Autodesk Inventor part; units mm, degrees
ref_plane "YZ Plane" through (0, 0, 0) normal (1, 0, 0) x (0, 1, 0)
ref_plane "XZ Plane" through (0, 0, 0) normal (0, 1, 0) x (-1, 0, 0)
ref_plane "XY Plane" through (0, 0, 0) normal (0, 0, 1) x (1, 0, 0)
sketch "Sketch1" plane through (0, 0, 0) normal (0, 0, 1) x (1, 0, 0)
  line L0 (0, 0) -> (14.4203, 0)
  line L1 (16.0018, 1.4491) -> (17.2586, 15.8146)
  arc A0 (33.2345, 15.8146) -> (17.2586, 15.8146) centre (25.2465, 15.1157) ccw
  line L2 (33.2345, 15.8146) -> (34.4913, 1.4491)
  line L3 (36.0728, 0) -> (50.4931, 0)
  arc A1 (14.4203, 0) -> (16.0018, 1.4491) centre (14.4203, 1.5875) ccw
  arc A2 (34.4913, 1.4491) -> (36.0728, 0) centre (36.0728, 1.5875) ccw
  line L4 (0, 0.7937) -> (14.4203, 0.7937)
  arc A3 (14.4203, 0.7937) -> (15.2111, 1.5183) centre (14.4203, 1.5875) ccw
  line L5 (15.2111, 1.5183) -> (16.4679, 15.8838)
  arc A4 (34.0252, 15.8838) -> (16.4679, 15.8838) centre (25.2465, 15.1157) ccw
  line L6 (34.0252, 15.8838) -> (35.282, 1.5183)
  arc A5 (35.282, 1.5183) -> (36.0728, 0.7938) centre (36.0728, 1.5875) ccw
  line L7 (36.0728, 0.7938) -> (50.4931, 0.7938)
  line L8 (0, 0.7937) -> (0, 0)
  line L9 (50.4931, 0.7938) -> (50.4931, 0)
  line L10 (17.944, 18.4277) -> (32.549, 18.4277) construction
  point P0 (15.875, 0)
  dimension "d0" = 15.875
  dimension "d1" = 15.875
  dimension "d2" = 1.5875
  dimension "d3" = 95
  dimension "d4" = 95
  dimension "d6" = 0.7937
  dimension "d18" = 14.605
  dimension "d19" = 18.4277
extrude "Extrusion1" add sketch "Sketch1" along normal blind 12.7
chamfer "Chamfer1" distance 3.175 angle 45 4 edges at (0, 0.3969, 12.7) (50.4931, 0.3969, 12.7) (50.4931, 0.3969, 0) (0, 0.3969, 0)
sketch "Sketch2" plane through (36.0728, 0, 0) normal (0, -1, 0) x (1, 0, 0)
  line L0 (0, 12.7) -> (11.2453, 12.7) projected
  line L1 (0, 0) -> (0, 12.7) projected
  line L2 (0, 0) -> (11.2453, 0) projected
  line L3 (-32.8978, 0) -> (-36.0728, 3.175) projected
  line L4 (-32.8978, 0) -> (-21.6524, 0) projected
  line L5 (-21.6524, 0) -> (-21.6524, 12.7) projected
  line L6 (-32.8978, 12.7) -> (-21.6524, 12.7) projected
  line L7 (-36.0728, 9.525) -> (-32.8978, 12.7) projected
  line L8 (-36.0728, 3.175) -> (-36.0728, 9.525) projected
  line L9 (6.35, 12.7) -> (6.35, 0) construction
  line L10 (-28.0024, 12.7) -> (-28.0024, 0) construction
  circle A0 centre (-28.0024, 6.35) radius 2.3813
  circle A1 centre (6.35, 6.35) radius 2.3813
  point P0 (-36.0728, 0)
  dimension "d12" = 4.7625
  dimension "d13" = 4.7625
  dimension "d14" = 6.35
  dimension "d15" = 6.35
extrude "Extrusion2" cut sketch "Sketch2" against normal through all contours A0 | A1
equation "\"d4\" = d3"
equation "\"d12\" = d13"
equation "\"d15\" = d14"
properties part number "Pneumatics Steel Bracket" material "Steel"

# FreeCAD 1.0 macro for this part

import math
import FreeCAD as App
import Part
import Sketcher

V = App.Vector
Q = App.Units.Quantity


def edges_at(feature, points):
    """Names of the edges that pass closest to the given points."""
    edges = feature.Shape.Edges
    near = lambda p: min(range(len(edges)), key=lambda i: edges[i].distToShape(Part.Vertex(*p))[0])
    return sorted({f"Edge{near(p) + 1}" for p in points})

doc = App.newDocument("Part")
params = doc.addObject("Spreadsheet::Sheet", "Params")
for row, (alias, value) in enumerate([
    ("sketch1_radius", "0.0625 in"),
    ("sketch1_radius2", "0.031252 in"),
    ("pad1_length", "0.5 in"),
    ("chamfer_size", "0.125 in"),
    ("sketch2_diameter", "0.1875 in"),
], start=1):
    params.set(f"A{row}", alias)
    params.set(f"B{row}", "=" + value)
    params.setAlias(f"B{row}", alias)

body = doc.addObject("PartDesign::Body", "Body")

sketch1 = doc.addObject("Sketcher::SketchObject", "Sketch")
body.addObject(sketch1)
sketch1.AttachmentSupport = (doc.XY_Plane, [""])
sketch1.MapMode = "FlatFace"
sketch1.addGeometry(Part.LineSegment(V(0, 0.8, 0), V(0, 0, 0)), False)
sketch1.addGeometry(Part.LineSegment(V(0, 0, 0), V(14.4, 0, 0)), False)
sketch1.addGeometry(Part.ArcOfCircle(Part.Circle(V(14.4, 1.6, 0), V(0, 0, 1), 1.6), math.radians(-90), math.radians(-5)), False)
sketch1.addGeometry(Part.LineSegment(V(16, 1.4, 0), V(17.3, 15.8, 0)), False)
sketch1.addGeometry(Part.ArcOfCircle(Part.Circle(V(25.2, 15.1, 0), V(0, 0, 1), 8), math.radians(5), math.radians(175)), False)
sketch1.addGeometry(Part.LineSegment(V(33.2, 15.8, 0), V(34.5, 1.4, 0)), False)
sketch1.addGeometry(Part.ArcOfCircle(Part.Circle(V(36.1, 1.6, 0), V(0, 0, 1), 1.6), math.radians(-175), math.radians(-90)), False)
sketch1.addGeometry(Part.LineSegment(V(36.1, 0, 0), V(50.5, 0, 0)), False)
sketch1.addGeometry(Part.LineSegment(V(50.5, 0, 0), V(50.5, 0.8, 0)), False)
sketch1.addGeometry(Part.LineSegment(V(50.5, 0.8, 0), V(36.1, 0.8, 0)), False)
sketch1.addGeometry(Part.ArcOfCircle(Part.Circle(V(36.1, 1.6, 0), V(0, 0, 1), 0.8), math.radians(-175), math.radians(-90)), False)
sketch1.addGeometry(Part.LineSegment(V(35.3, 1.5, 0), V(34, 15.9, 0)), False)
sketch1.addGeometry(Part.ArcOfCircle(Part.Circle(V(25.2, 15.1, 0), V(0, 0, 1), 8.8), math.radians(5), math.radians(175)), False)
sketch1.addGeometry(Part.LineSegment(V(16.5, 15.9, 0), V(15.2, 1.5, 0)), False)
sketch1.addGeometry(Part.ArcOfCircle(Part.Circle(V(14.4, 1.6, 0), V(0, 0, 1), 0.8), math.radians(-90), math.radians(-5)), False)
sketch1.addGeometry(Part.LineSegment(V(14.4, 0.8, 0), V(0, 0.8, 0)), False)
sketch1.addConstraint(Sketcher.Constraint("Coincident", 0, 2, 1, 1))
sketch1.addConstraint(Sketcher.Constraint("Tangent", 1, 2, 2, 1))
sketch1.addConstraint(Sketcher.Constraint("Tangent", 2, 2, 3, 1))
sketch1.addConstraint(Sketcher.Constraint("Tangent", 3, 2, 4, 2))
sketch1.addConstraint(Sketcher.Constraint("Tangent", 4, 1, 5, 1))
sketch1.addConstraint(Sketcher.Constraint("Tangent", 5, 2, 6, 1))
sketch1.addConstraint(Sketcher.Constraint("Tangent", 6, 2, 7, 1))
sketch1.addConstraint(Sketcher.Constraint("Coincident", 7, 2, 8, 1))
sketch1.addConstraint(Sketcher.Constraint("Coincident", 8, 2, 9, 1))
sketch1.addConstraint(Sketcher.Constraint("Tangent", 9, 2, 10, 2))
sketch1.addConstraint(Sketcher.Constraint("Tangent", 10, 1, 11, 1))
sketch1.addConstraint(Sketcher.Constraint("Tangent", 11, 2, 12, 1))
sketch1.addConstraint(Sketcher.Constraint("Tangent", 12, 2, 13, 1))
sketch1.addConstraint(Sketcher.Constraint("Tangent", 13, 2, 14, 2))
sketch1.addConstraint(Sketcher.Constraint("Tangent", 14, 1, 15, 1))
sketch1.addConstraint(Sketcher.Constraint("Coincident", 15, 2, 0, 1))
sketch1.addConstraint(Sketcher.Constraint("Vertical", 0))
sketch1.addConstraint(Sketcher.Constraint("Horizontal", 1))
sketch1.addConstraint(Sketcher.Constraint("Horizontal", 7))
sketch1.addConstraint(Sketcher.Constraint("Vertical", 8))
sketch1.addConstraint(Sketcher.Constraint("Horizontal", 9))
sketch1.addConstraint(Sketcher.Constraint("Horizontal", 15))
sketch1.addConstraint(Sketcher.Constraint("Coincident", 0, 2, -1, 1))
sketch1.addConstraint(Sketcher.Constraint("Coincident", 10, 3, 6, 3))
sketch1.addConstraint(Sketcher.Constraint("Coincident", 12, 3, 4, 3))
sketch1.addConstraint(Sketcher.Constraint("Coincident", 14, 3, 2, 3))
sketch1.addConstraint(Sketcher.Constraint("Equal", 2, 6))
sketch1.addConstraint(Sketcher.Constraint("Equal", 10, 14))
sketch1.addConstraint(Sketcher.Constraint("PointOnObject", 6, 2, -1))
sketch1.addConstraint(Sketcher.Constraint("Parallel", 5, 11))
sketch1.addConstraint(Sketcher.Constraint("Horizontal", 3, 2, 4, 1))
sketch1.addConstraint(Sketcher.Constraint("Equal", 1, 7))
sketch1.addConstraint(Sketcher.Constraint("Angle", 11, Q("95 deg")))
sketch1.addConstraint(Sketcher.Constraint("Radius", 2, Q("0.0625 in")))
sketch1.addConstraint(Sketcher.Constraint("Radius", 10, Q("0.031252 in")))
sketch1.addConstraint(Sketcher.Constraint("Radius", 4, Q("0.3157 in")))
sketch1.addConstraint(Sketcher.Constraint("DistanceX", -1, 1, 2, 2, Q("0.63 in")))
sketch1.addConstraint(Sketcher.Constraint("DistanceY", -1, 1, 4, 3, Q("0.5951 in")))
sketch1.setExpression("Constraints[33]", "Params.sketch1_radius")
sketch1.setExpression("Constraints[34]", "Params.sketch1_radius2")
pad1 = doc.addObject("PartDesign::Pad", "Pad")
body.addObject(pad1)
pad1.Profile = sketch1
pad1.setExpression("Length", "Params.pad1_length")
doc.recompute()

chamfer = doc.addObject("PartDesign::Chamfer", "Chamfer")
body.addObject(chamfer)
chamfer.Base = (pad1, edges_at(pad1, [
    (0, 0.397, 12.7),
    (50.493, 0.397, 12.7),
    (50.493, 0.397, 0),
    (0, 0.397, 0),
]))
chamfer.setExpression("Size", "Params.chamfer_size")

sketch2 = doc.addObject("Sketcher::SketchObject", "Sketch001")
body.addObject(sketch2)
sketch2.AttachmentSupport = (doc.XZ_Plane, [""])
sketch2.MapMode = "FlatFace"
sketch2.addGeometry(Part.Circle(V(8.1, 6.3, 0), V(0, 0, 1), 2.4), False)
sketch2.addGeometry(Part.Circle(V(42.4, 6.3, 0), V(0, 0, 1), 2.4), False)
sketch2.addConstraint(Sketcher.Constraint("Equal", 0, 1))
sketch2.addConstraint(Sketcher.Constraint("Horizontal", 0, 3, 1, 3))
sketch2.addConstraint(Sketcher.Constraint("Diameter", 0, Q("0.1875 in")))
sketch2.addConstraint(Sketcher.Constraint("DistanceY", -1, 1, 0, 3, Q("0.25 in")))
sketch2.addConstraint(Sketcher.Constraint("DistanceX", -1, 1, 1, 3, Q("1.6702 in")))
sketch2.addConstraint(Sketcher.Constraint("DistanceX", -1, 1, 0, 3, Q("8.0704 mm")))
sketch2.setExpression("Constraints[2]", "Params.sketch2_diameter")
pocket1 = doc.addObject("PartDesign::Pocket", "Pocket")
body.addObject(pocket1)
pocket1.Profile = sketch2
pocket1.Type = "ThroughAll"

doc.recompute()
